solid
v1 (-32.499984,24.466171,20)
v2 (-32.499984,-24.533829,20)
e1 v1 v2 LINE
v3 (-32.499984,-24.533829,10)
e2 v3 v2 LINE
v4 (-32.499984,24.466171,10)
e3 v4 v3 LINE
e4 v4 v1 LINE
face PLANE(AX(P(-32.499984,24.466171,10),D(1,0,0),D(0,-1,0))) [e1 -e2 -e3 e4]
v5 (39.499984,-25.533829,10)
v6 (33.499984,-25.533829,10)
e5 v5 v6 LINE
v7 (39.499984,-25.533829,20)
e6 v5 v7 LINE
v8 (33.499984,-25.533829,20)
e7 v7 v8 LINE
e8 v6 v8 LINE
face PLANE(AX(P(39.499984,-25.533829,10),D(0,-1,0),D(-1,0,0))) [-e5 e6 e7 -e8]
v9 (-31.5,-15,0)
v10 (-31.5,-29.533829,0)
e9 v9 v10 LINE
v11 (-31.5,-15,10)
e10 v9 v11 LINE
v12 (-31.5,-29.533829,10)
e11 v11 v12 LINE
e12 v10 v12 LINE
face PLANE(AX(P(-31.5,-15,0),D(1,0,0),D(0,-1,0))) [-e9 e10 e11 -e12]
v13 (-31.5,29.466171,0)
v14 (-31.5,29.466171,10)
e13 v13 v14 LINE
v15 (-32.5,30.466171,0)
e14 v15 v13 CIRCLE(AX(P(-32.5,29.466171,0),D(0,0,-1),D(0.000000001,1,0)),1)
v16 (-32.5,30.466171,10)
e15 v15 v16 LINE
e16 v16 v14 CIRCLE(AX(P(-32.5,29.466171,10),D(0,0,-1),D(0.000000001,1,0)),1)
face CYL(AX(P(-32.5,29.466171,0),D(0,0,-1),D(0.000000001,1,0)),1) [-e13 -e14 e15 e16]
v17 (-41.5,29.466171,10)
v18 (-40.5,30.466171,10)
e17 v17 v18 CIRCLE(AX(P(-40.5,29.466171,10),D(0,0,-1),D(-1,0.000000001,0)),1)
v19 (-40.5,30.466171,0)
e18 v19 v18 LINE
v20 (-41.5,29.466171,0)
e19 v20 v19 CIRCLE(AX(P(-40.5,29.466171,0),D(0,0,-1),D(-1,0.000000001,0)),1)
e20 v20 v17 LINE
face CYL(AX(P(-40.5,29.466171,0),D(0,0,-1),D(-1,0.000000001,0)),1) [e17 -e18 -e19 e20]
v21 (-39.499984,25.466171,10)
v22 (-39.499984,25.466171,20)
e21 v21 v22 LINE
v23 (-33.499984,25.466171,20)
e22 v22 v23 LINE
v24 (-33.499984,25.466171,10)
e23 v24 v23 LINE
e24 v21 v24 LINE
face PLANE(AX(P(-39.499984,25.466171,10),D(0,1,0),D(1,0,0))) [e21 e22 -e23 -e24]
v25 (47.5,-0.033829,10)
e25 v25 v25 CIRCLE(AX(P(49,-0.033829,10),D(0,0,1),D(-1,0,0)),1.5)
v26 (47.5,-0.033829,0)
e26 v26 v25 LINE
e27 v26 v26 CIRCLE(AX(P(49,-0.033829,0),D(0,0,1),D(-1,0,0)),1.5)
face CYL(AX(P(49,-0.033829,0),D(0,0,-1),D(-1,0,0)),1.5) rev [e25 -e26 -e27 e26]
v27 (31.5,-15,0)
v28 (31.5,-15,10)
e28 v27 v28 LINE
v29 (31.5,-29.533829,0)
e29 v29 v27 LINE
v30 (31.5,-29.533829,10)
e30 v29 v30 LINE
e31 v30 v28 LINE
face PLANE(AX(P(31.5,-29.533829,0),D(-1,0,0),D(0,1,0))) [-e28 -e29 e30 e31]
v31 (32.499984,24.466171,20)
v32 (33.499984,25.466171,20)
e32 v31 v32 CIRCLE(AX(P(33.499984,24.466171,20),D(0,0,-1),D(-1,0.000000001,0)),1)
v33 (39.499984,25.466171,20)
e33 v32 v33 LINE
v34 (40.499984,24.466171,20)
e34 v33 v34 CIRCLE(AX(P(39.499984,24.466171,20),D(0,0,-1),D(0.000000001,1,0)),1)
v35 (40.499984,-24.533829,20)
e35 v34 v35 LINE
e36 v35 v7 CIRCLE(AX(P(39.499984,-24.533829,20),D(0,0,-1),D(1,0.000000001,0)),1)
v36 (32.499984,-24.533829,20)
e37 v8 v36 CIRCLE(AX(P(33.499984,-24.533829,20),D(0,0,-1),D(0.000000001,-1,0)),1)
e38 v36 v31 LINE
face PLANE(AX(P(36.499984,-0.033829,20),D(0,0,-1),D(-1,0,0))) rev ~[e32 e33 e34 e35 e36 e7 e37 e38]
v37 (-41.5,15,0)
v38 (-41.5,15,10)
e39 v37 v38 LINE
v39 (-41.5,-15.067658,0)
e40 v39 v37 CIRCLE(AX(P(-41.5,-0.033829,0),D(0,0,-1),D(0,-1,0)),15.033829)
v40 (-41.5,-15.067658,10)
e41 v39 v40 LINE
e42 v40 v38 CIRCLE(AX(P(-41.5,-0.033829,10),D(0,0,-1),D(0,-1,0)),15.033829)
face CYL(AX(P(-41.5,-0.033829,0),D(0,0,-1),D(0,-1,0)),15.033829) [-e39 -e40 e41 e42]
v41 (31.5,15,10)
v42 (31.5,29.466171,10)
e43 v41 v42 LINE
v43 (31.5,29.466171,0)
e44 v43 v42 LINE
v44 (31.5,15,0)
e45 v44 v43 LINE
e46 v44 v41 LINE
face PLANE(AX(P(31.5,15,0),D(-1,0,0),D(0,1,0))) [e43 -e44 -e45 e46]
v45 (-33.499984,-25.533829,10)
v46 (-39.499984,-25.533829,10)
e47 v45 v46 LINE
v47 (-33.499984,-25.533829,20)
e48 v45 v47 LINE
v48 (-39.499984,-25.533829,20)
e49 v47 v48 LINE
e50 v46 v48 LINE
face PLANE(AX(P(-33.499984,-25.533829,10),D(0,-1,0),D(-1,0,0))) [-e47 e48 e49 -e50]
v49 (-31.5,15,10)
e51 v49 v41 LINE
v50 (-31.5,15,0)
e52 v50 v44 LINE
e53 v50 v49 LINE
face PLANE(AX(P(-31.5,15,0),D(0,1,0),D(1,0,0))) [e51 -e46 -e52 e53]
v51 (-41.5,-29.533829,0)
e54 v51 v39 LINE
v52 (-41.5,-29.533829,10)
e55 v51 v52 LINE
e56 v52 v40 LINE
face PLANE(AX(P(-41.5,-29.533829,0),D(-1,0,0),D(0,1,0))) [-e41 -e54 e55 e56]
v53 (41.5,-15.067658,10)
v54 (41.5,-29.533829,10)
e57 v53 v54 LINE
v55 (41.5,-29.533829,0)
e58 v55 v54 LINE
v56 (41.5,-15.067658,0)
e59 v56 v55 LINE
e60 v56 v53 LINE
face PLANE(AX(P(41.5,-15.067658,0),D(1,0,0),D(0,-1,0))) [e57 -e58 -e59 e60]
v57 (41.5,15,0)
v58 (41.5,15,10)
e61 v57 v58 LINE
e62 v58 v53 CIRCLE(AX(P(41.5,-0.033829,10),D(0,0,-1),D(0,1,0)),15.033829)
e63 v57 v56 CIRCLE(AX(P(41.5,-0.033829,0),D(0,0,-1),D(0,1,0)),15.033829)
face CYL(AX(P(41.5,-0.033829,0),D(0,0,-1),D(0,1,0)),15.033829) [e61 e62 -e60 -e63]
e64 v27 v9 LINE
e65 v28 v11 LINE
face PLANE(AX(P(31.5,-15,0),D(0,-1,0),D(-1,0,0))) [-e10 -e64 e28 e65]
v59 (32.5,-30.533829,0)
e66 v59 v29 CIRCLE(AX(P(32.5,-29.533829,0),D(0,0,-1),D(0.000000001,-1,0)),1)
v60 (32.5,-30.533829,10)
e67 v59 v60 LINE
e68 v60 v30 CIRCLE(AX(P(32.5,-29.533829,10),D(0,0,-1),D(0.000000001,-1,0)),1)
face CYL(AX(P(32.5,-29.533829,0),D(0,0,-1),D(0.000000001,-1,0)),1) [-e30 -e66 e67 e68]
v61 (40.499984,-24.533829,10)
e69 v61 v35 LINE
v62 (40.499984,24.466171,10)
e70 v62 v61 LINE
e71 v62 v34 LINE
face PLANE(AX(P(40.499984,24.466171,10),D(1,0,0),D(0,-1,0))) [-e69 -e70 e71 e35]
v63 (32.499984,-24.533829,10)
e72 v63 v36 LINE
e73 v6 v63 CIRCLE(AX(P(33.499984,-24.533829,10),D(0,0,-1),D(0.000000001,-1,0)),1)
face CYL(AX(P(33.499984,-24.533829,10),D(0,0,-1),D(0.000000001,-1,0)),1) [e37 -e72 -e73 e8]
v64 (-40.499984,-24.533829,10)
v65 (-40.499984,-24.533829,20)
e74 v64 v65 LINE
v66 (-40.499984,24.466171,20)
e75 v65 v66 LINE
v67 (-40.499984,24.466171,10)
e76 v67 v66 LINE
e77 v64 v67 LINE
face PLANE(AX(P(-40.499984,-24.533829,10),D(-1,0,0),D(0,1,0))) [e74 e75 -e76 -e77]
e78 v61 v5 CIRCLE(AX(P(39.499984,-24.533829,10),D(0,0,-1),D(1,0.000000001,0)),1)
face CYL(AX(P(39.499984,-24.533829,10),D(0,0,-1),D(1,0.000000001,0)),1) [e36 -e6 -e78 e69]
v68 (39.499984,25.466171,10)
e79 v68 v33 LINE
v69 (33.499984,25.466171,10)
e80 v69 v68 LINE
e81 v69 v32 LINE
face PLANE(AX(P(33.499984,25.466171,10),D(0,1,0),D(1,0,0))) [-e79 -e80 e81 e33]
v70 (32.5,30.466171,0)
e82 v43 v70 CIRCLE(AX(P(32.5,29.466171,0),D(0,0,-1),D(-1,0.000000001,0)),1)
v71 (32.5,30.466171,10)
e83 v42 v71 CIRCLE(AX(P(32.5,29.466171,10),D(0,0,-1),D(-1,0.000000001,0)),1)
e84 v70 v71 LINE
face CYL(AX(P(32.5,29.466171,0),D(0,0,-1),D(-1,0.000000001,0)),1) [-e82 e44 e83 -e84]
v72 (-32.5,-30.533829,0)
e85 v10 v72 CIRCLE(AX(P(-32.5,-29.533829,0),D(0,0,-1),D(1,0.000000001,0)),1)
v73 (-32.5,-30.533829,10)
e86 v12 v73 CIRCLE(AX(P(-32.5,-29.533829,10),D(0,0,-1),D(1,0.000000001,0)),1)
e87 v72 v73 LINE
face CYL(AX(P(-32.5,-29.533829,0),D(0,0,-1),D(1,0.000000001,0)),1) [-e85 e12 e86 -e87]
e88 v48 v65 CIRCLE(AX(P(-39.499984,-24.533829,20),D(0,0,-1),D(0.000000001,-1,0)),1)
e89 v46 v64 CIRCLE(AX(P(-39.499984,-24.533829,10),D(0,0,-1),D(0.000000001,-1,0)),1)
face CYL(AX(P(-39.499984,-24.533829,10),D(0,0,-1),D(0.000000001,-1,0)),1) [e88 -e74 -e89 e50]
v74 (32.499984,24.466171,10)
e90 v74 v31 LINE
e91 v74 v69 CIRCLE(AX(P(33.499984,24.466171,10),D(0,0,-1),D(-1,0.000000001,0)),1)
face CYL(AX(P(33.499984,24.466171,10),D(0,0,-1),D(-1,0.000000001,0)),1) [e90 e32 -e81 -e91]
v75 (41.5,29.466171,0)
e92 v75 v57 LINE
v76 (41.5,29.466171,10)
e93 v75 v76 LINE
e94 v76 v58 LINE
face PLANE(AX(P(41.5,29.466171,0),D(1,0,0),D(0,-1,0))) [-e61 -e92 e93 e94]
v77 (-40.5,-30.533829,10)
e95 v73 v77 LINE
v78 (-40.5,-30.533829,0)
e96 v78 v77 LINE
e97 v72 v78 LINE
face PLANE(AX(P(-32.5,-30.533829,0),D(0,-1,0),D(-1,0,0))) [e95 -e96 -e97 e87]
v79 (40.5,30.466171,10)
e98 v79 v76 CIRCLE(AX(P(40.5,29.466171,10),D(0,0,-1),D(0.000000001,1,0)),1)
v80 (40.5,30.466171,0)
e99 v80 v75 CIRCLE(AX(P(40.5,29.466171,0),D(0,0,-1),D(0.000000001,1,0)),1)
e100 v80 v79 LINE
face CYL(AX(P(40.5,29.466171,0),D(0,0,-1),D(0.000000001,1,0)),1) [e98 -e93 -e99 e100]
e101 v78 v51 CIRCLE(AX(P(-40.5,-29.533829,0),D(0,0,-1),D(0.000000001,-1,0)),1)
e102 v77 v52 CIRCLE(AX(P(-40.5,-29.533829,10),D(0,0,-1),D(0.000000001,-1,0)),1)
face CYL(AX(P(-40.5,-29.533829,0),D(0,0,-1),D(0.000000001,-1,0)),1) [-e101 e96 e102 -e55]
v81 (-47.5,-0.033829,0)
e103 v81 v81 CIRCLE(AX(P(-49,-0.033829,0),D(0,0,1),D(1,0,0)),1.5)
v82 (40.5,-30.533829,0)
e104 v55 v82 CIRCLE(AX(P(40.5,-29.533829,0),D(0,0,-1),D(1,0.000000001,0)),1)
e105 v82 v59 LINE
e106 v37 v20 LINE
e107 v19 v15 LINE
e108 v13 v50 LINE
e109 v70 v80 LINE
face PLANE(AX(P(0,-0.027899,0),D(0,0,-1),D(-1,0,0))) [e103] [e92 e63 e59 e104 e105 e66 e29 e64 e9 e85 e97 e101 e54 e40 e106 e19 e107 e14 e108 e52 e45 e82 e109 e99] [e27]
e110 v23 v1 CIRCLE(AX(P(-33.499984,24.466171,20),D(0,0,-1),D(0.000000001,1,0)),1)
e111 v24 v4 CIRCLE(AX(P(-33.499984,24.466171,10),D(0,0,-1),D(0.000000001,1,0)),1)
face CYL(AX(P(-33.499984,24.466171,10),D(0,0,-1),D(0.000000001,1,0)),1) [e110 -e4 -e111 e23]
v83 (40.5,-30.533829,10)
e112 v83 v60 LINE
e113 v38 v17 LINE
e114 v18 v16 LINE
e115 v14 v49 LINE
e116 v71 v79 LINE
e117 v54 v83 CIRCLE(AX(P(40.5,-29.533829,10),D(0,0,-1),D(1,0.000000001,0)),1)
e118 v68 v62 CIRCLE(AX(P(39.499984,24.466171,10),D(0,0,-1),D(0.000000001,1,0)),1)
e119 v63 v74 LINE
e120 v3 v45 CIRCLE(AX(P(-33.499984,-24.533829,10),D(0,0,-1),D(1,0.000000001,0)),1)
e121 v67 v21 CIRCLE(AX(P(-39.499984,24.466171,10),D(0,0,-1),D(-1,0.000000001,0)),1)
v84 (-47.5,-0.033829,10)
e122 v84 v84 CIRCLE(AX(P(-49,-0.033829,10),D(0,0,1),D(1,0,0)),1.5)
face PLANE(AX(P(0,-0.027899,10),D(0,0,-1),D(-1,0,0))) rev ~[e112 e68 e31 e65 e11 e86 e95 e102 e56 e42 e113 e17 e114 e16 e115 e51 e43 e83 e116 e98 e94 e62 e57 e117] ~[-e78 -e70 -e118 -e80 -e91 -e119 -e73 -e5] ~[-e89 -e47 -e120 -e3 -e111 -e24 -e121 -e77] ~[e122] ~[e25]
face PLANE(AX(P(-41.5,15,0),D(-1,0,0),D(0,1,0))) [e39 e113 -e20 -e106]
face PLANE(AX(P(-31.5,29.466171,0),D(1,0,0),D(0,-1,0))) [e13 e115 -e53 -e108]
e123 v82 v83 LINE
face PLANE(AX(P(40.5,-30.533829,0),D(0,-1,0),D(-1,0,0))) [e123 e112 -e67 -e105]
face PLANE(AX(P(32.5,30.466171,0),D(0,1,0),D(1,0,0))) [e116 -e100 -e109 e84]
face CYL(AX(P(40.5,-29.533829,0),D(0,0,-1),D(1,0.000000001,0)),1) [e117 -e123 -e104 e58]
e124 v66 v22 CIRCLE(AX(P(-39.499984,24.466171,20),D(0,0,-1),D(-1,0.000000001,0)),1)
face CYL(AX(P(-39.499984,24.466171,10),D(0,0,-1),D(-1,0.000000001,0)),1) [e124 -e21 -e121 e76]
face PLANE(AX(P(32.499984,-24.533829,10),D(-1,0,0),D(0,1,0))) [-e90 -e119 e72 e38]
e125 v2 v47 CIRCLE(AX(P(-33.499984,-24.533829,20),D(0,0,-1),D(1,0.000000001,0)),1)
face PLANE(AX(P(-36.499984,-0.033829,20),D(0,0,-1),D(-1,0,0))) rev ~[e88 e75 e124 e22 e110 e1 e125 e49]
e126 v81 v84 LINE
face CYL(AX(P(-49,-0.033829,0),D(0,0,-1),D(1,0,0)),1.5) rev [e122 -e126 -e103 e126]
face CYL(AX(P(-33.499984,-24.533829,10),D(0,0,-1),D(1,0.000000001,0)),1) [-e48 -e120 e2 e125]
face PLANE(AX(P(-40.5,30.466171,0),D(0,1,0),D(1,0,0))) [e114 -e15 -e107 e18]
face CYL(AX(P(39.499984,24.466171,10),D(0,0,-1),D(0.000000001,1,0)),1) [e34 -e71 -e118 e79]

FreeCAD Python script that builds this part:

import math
import FreeCAD as App
import Part
import Sketcher
Q = App.Units.Quantity

doc = App.newDocument("Part")
params = doc.addObject("Spreadsheet::Sheet", "Params")
for row, (alias, value) in enumerate([
    ("sketch1_diameter", "3 mm"),
    ("sketch1_radius", "1 mm"),
    ("sketch1_width", "63 mm"),
    ("sketch1_width2", "8 mm"),
    ("pad1_length", "10 mm"),
    ("sketch2_radius", "1 mm"),
    ("sketch2_width", "6 mm"),
    ("sketch2_height", "49 mm"),
    ("pad2_length", "10 mm"),
], start=1):
    params.set(f"A{row}", alias)
    params.set(f"B{row}", "=" + value)
    params.setAlias(f"B{row}", alias)

body = doc.addObject("PartDesign::Body", "Body")

# Sketch on XY plane
sketch1 = body.newObject("Sketcher::SketchObject", "Sketch")
sketch1.AttachmentSupport = (doc.getObject("XY_Plane"), [""])
sketch1.MapMode = "FlatFace"
sketch1.addGeometry([
    Part.LineSegment(App.Vector(-31.5, -15, 0), App.Vector(31.5, -15, 0)),  # 0
    Part.LineSegment(App.Vector(31.5, -15, 0), App.Vector(31.5, -29.533829, 0)),  # 1
    Part.ArcOfCircle(Part.Circle(App.Vector(32.5, -29.533829, 0), App.Vector(0, 0, 1), 1), math.radians(180), math.radians(270)),  # 2
    Part.LineSegment(App.Vector(32.5, -30.533829, 0), App.Vector(40.5, -30.533829, 0)),  # 3
    Part.ArcOfCircle(Part.Circle(App.Vector(40.5, -29.533829, 0), App.Vector(0, 0, 1), 1), math.radians(-90), math.radians(0)),  # 4
    Part.LineSegment(App.Vector(41.5, -29.533829, 0), App.Vector(41.5, -15.067658, 0)),  # 5
    Part.ArcOfCircle(Part.Circle(App.Vector(41.5, -0.033829, 0), App.Vector(0, 0, 1), 15.033829), math.radians(-90), math.radians(90)),  # 6
    Part.LineSegment(App.Vector(41.5, 15, 0), App.Vector(41.5, 29.466171, 0)),  # 7
    Part.ArcOfCircle(Part.Circle(App.Vector(40.5, 29.466171, 0), App.Vector(0, 0, 1), 1), math.radians(0), math.radians(90)),  # 8
    Part.LineSegment(App.Vector(40.5, 30.466171, 0), App.Vector(32.5, 30.466171, 0)),  # 9
    Part.ArcOfCircle(Part.Circle(App.Vector(32.5, 29.466171, 0), App.Vector(0, 0, 1), 1), math.radians(90), math.radians(180)),  # 10
    Part.LineSegment(App.Vector(31.5, 29.466171, 0), App.Vector(31.5, 15, 0)),  # 11
    Part.LineSegment(App.Vector(31.5, 15, 0), App.Vector(-31.5, 15, 0)),  # 12
    Part.LineSegment(App.Vector(-31.5, 15, 0), App.Vector(-31.5, 29.466171, 0)),  # 13
    Part.ArcOfCircle(Part.Circle(App.Vector(-32.5, 29.466171, 0), App.Vector(0, 0, 1), 1), math.radians(0), math.radians(90)),  # 14
    Part.LineSegment(App.Vector(-32.5, 30.466171, 0), App.Vector(-40.5, 30.466171, 0)),  # 15
    Part.ArcOfCircle(Part.Circle(App.Vector(-40.5, 29.466171, 0), App.Vector(0, 0, 1), 1), math.radians(90), math.radians(180)),  # 16
    Part.LineSegment(App.Vector(-41.5, 29.466171, 0), App.Vector(-41.5, 15, 0)),  # 17
    Part.ArcOfCircle(Part.Circle(App.Vector(-41.5, -0.033829, 0), App.Vector(0, 0, 1), 15.033829), math.radians(90), math.radians(270)),  # 18
    Part.LineSegment(App.Vector(-41.5, -15.067658, 0), App.Vector(-41.5, -29.533829, 0)),  # 19
    Part.ArcOfCircle(Part.Circle(App.Vector(-40.5, -29.533829, 0), App.Vector(0, 0, 1), 1), math.radians(180), math.radians(270)),  # 20
    Part.LineSegment(App.Vector(-40.5, -30.533829, 0), App.Vector(-32.5, -30.533829, 0)),  # 21
    Part.ArcOfCircle(Part.Circle(App.Vector(-32.5, -29.533829, 0), App.Vector(0, 0, 1), 1), math.radians(-90), math.radians(0)),  # 22
    Part.LineSegment(App.Vector(-31.5, -29.533829, 0), App.Vector(-31.5, -15, 0)),  # 23
    Part.Circle(App.Vector(49, -0.033829, 0), App.Vector(0, 0, 1), 1.5),  # 24
    Part.Circle(App.Vector(-49, -0.033829, 0), App.Vector(0, 0, 1), 1.5),  # 25
], False)
sketch1.addConstraint([
    Sketcher.Constraint("Coincident", 0, 2, 1, 1),
    Sketcher.Constraint("Tangent", 1, 2, 2, 1),
    Sketcher.Constraint("Tangent", 2, 2, 3, 1),
    Sketcher.Constraint("Tangent", 3, 2, 4, 1),
    Sketcher.Constraint("Tangent", 4, 2, 5, 1),
    Sketcher.Constraint("Coincident", 5, 2, 6, 1),
    Sketcher.Constraint("Coincident", 6, 2, 7, 1),
    Sketcher.Constraint("Tangent", 7, 2, 8, 1),
    Sketcher.Constraint("Tangent", 8, 2, 9, 1),
    Sketcher.Constraint("Tangent", 9, 2, 10, 1),
    Sketcher.Constraint("Tangent", 10, 2, 11, 1),
    Sketcher.Constraint("Coincident", 11, 2, 12, 1),
    Sketcher.Constraint("Coincident", 12, 2, 13, 1),
    Sketcher.Constraint("Tangent", 13, 2, 14, 1),
    Sketcher.Constraint("Tangent", 14, 2, 15, 1),
    Sketcher.Constraint("Tangent", 15, 2, 16, 1),
    Sketcher.Constraint("Tangent", 16, 2, 17, 1),
    Sketcher.Constraint("Coincident", 17, 2, 18, 1),
    Sketcher.Constraint("Coincident", 18, 2, 19, 1),
    Sketcher.Constraint("Tangent", 19, 2, 20, 1),
    Sketcher.Constraint("Tangent", 20, 2, 21, 1),
    Sketcher.Constraint("Tangent", 21, 2, 22, 1),
    Sketcher.Constraint("Tangent", 22, 2, 23, 1),
    Sketcher.Constraint("Coincident", 23, 2, 0, 1),
    Sketcher.Constraint("Horizontal", 0),
    Sketcher.Constraint("Vertical", 1),
    Sketcher.Constraint("Horizontal", 3),
    Sketcher.Constraint("Vertical", 5),
    Sketcher.Constraint("Vertical", 7),
    Sketcher.Constraint("Horizontal", 9),
    Sketcher.Constraint("Vertical", 11),
    Sketcher.Constraint("Horizontal", 12),
    Sketcher.Constraint("Vertical", 13),
    Sketcher.Constraint("Horizontal", 15),
    Sketcher.Constraint("Vertical", 17),
    Sketcher.Constraint("Vertical", 19),
    Sketcher.Constraint("Horizontal", 21),
    Sketcher.Constraint("Vertical", 23),
    Sketcher.Constraint("Equal", 2, 4),
    Sketcher.Constraint("Equal", 4, 8),
    Sketcher.Constraint("Equal", 8, 10),
    Sketcher.Constraint("Equal", 10, 14),
    Sketcher.Constraint("Equal", 14, 16),
    Sketcher.Constraint("Equal", 6, 18),
    Sketcher.Constraint("Equal", 16, 20),
    Sketcher.Constraint("Equal", 20, 22),
    Sketcher.Constraint("Equal", 24, 25),
    Sketcher.Constraint("Symmetric", 0, 2, 12, 2, -1, 1),
    Sketcher.Constraint("Symmetric", 10, 3, 14, 3, -2),
    Sketcher.Constraint("Symmetric", 6, 3, 18, 3, -2),
    Sketcher.Constraint("Symmetric", 4, 3, 20, 3, -2),
    Sketcher.Constraint("Symmetric", 24, 3, 25, 3, -2),
    Sketcher.Constraint("Horizontal", 18, 3, 24, 3),
    Sketcher.Constraint("Horizontal", 6, 2, 11, 2),
    Sketcher.Constraint("Vertical", 4, 3, 8, 3),
    Sketcher.Constraint("Vertical", 16, 3, 20, 3),
    Sketcher.Constraint("Vertical", 14, 3, 22, 3),
    Sketcher.Constraint("Vertical", 6, 3, 4, 2),
    Sketcher.Constraint("Equal", 5, 7),
    Sketcher.Constraint("Diameter", 24, Q("3 mm")),
    Sketcher.Constraint("Radius", 2, Q("1 mm")),
    Sketcher.Constraint("DistanceX", 0, 1, 0, 2, Q("63 mm")),
    Sketcher.Constraint("DistanceX", 3, 1, 3, 2, Q("8 mm")),
    Sketcher.Constraint("DistanceX", -1, 1, 24, 3, Q("49 mm")),
    Sketcher.Constraint("DistanceY", 0, 2, -1, 1, Q("15 mm")),
    Sketcher.Constraint("DistanceY", 4, 3, 8, 3, Q("59 mm")),
    Sketcher.Constraint("Radius", 6, Q("15.033829 mm")),
])
sketch1.setExpression("Constraints[59]", "Params.sketch1_diameter")
sketch1.setExpression("Constraints[60]", "Params.sketch1_radius")
sketch1.setExpression("Constraints[61]", "Params.sketch1_width")
sketch1.setExpression("Constraints[62]", "Params.sketch1_width2")
pad1 = body.newObject("PartDesign::Pad", "Pad")
pad1.Profile = sketch1
pad1.setExpression("Length", "Params.pad1_length")

# Sketch on XY plane
sketch2 = body.newObject("Sketcher::SketchObject", "Sketch001")
sketch2.AttachmentSupport = (doc.getObject("XY_Plane"), [""])
sketch2.MapMode = "FlatFace"
sketch2.AttachmentOffset = App.Placement(App.Vector(0, 0, 10), App.Rotation())
sketch2.addGeometry([
    Part.LineSegment(App.Vector(-39.499984, -25.533829, 0), App.Vector(-33.499984, -25.533829, 0)),  # 0
    Part.ArcOfCircle(Part.Circle(App.Vector(-33.499984, -24.533829, 0), App.Vector(0, 0, 1), 1), math.radians(-90), math.radians(0)),  # 1
    Part.LineSegment(App.Vector(-32.499984, -24.533829, 0), App.Vector(-32.499984, 24.466171, 0)),  # 2
    Part.ArcOfCircle(Part.Circle(App.Vector(-33.499984, 24.466171, 0), App.Vector(0, 0, 1), 1), math.radians(0), math.radians(90)),  # 3
    Part.LineSegment(App.Vector(-33.499984, 25.466171, 0), App.Vector(-39.499984, 25.466171, 0)),  # 4
    Part.ArcOfCircle(Part.Circle(App.Vector(-39.499984, 24.466171, 0), App.Vector(0, 0, 1), 1), math.radians(90), math.radians(180)),  # 5
    Part.LineSegment(App.Vector(-40.499984, 24.466171, 0), App.Vector(-40.499984, -24.533829, 0)),  # 6
    Part.ArcOfCircle(Part.Circle(App.Vector(-39.499984, -24.533829, 0), App.Vector(0, 0, 1), 1), math.radians(180), math.radians(270)),  # 7
    Part.LineSegment(App.Vector(39.499984, 25.466171, 0), App.Vector(33.499984, 25.466171, 0)),  # 8
    Part.ArcOfCircle(Part.Circle(App.Vector(33.499984, 24.466171, 0), App.Vector(0, 0, 1), 1), math.radians(90), math.radians(180)),  # 9
    Part.LineSegment(App.Vector(32.499984, 24.466171, 0), App.Vector(32.499984, -24.533829, 0)),  # 10
    Part.ArcOfCircle(Part.Circle(App.Vector(33.499984, -24.533829, 0), App.Vector(0, 0, 1), 1), math.radians(180), math.radians(270)),  # 11
    Part.LineSegment(App.Vector(33.499984, -25.533829, 0), App.Vector(39.499984, -25.533829, 0)),  # 12
    Part.ArcOfCircle(Part.Circle(App.Vector(39.499984, -24.533829, 0), App.Vector(0, 0, 1), 1), math.radians(-90), math.radians(0)),  # 13
    Part.LineSegment(App.Vector(40.499984, -24.533829, 0), App.Vector(40.499984, 24.466171, 0)),  # 14
    Part.ArcOfCircle(Part.Circle(App.Vector(39.499984, 24.466171, 0), App.Vector(0, 0, 1), 1), math.radians(0), math.radians(90)),  # 15
], False)
sketch2.addConstraint([
    Sketcher.Constraint("Tangent", 0, 2, 1, 1),
    Sketcher.Constraint("Tangent", 1, 2, 2, 1),
    Sketcher.Constraint("Tangent", 2, 2, 3, 1),
    Sketcher.Constraint("Tangent", 3, 2, 4, 1),
    Sketcher.Constraint("Tangent", 4, 2, 5, 1),
    Sketcher.Constraint("Tangent", 5, 2, 6, 1),
    Sketcher.Constraint("Tangent", 6, 2, 7, 1),
    Sketcher.Constraint("Tangent", 7, 2, 0, 1),
    Sketcher.Constraint("Tangent", 8, 2, 9, 1),
    Sketcher.Constraint("Tangent", 9, 2, 10, 1),
    Sketcher.Constraint("Tangent", 10, 2, 11, 1),
    Sketcher.Constraint("Tangent", 11, 2, 12, 1),
    Sketcher.Constraint("Tangent", 12, 2, 13, 1),
    Sketcher.Constraint("Tangent", 13, 2, 14, 1),
    Sketcher.Constraint("Tangent", 14, 2, 15, 1),
    Sketcher.Constraint("Tangent", 15, 2, 8, 1),
    Sketcher.Constraint("Horizontal", 0),
    Sketcher.Constraint("Vertical", 2),
    Sketcher.Constraint("Horizontal", 4),
    Sketcher.Constraint("Vertical", 6),
    Sketcher.Constraint("Horizontal", 8),
    Sketcher.Constraint("Vertical", 10),
    Sketcher.Constraint("Horizontal", 12),
    Sketcher.Constraint("Vertical", 14),
    Sketcher.Constraint("Equal", 1, 3),
    Sketcher.Constraint("Equal", 3, 5),
    Sketcher.Constraint("Equal", 5, 7),
    Sketcher.Constraint("Equal", 7, 9),
    Sketcher.Constraint("Equal", 9, 11),
    Sketcher.Constraint("Equal", 11, 13),
    Sketcher.Constraint("Equal", 13, 15),
    Sketcher.Constraint("Symmetric", 3, 3, 9, 3, -2),
    Sketcher.Constraint("Symmetric", 7, 3, 13, 3, -2),
    Sketcher.Constraint("Radius", 1, Q("1 mm")),
    Sketcher.Constraint("DistanceX", 0, 1, 0, 2, Q("6 mm")),
    Sketcher.Constraint("DistanceY", 2, 1, 2, 2, Q("49 mm")),
    Sketcher.Constraint("DistanceY", 1, 3, -1, 1, Q("24.533829 mm")),
    Sketcher.Constraint("DistanceX", 3, 3, 9, 3, Q("66.999969 mm")),
])
sketch2.setExpression("Constraints[33]", "Params.sketch2_radius")
sketch2.setExpression("Constraints[34]", "Params.sketch2_width")
sketch2.setExpression("Constraints[35]", "Params.sketch2_height")
pad2 = body.newObject("PartDesign::Pad", "Pad001")
pad2.Profile = sketch2
pad2.setExpression("Length", "Params.pad2_length")

doc.recompute()
